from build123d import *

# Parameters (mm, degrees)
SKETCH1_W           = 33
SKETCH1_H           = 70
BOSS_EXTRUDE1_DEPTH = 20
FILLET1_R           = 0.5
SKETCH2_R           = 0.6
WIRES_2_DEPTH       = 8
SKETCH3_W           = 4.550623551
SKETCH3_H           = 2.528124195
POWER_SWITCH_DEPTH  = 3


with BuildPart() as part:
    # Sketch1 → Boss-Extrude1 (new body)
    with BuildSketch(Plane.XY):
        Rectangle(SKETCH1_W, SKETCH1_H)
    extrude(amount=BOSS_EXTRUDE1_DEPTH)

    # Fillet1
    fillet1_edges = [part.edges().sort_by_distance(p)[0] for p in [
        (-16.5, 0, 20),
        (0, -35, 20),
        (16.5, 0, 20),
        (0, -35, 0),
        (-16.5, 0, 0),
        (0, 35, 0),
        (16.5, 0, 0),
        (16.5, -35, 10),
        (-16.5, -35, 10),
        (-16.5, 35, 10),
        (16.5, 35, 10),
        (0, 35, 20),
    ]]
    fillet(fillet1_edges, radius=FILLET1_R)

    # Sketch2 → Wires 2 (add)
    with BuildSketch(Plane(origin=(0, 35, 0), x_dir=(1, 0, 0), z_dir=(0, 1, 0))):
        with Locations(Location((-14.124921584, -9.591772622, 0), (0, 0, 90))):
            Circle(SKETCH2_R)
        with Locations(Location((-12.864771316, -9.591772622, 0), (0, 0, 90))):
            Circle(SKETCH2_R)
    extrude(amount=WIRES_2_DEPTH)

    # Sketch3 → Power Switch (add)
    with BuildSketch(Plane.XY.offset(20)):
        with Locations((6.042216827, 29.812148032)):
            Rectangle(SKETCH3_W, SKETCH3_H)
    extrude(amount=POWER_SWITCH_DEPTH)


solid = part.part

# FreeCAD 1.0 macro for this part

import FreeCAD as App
import Part
import Sketcher


def add_polygon(sketch, points):
    """Adds a closed chain of lines whose ends are joined by coincident constraints."""
    first, n = sketch.GeometryCount, len(points)
    for a, b in zip(points, points[1:] + points[:1]):
        sketch.addGeometry(Part.LineSegment(App.Vector(*a, 0), App.Vector(*b, 0)), False)
    for i in range(n):
        sketch.addConstraint(Sketcher.Constraint("Coincident", first + i, 2, first + (i + 1) % n, 1))

doc = App.newDocument("Part")
body = doc.addObject("PartDesign::Body", "Body")

sketch1 = doc.addObject("Sketcher::SketchObject", "Sketch")
body.addObject(sketch1)
sketch1.AttachmentSupport = (doc.XY_Plane, [""])
sketch1.MapMode = "FlatFace"
add_polygon(sketch1, [(-16, 35), (-16, -35), (16, -35), (16, 35)])
sketch1.addConstraint([
    Sketcher.Constraint("Vertical", 0),
    Sketcher.Constraint("Horizontal", 1),
    Sketcher.Constraint("Vertical", 2),
    Sketcher.Constraint("Horizontal", 3),
    Sketcher.Constraint("Symmetric", 0, 2, 2, 2, -1, 1),
    Sketcher.Constraint("DistanceX", 1, 1, 1, 2, 33.0),
    Sketcher.Constraint("DistanceY", 0, 2, 0, 1, 70.0),
])
pad1 = doc.addObject("PartDesign::Pad", "Pad")
body.addObject(pad1)
pad1.Profile = sketch1
pad1.Length = 20
doc.recompute()

fillet = doc.addObject("PartDesign::Fillet", "Fillet")
body.addObject(fillet)
fillet.Base = (pad1, ["Edge1"])
fillet.UseAllEdges = True
fillet.Radius = 0.5

sketch2 = doc.addObject("Sketcher::SketchObject", "Sketch001")
body.addObject(sketch2)
sketch2.AttachmentSupport = (doc.XZ_Plane, [""])
sketch2.MapMode = "FlatFace"
sketch2.AttachmentOffset = App.Placement(App.Vector(0, 0, -35), App.Rotation())
sketch2.addGeometry([
    Part.Circle(App.Vector(-14.1, 9.6, 0), App.Vector(0, 0, 1), 0.6),
    Part.Circle(App.Vector(-12.9, 9.6, 0), App.Vector(0, 0, 1), 0.6),
], False)
sketch2.addConstraint([
    Sketcher.Constraint("Equal", 0, 1),
    Sketcher.Constraint("Horizontal", 0, 3, 1, 3),
    Sketcher.Constraint("Diameter", 0, 1.2),
    Sketcher.Constraint("DistanceX", 0, 3, -1, 1, 14.124922),
    Sketcher.Constraint("DistanceX", 1, 3, -1, 1, 12.864771),
    Sketcher.Constraint("DistanceY", -1, 1, 0, 3, 9.591773),
])
pad2 = doc.addObject("PartDesign::Pad", "Pad001")
body.addObject(pad2)
pad2.Profile = sketch2
pad2.Length = 8
pad2.Reversed = True

sketch3 = doc.addObject("Sketcher::SketchObject", "Sketch002")
body.addObject(sketch3)
sketch3.AttachmentSupport = (doc.XY_Plane, [""])
sketch3.MapMode = "FlatFace"
sketch3.AttachmentOffset = App.Placement(App.Vector(0, 0, 20), App.Rotation())
add_polygon(sketch3, [(3.8, 31.1), (3.8, 28.5), (8.3, 28.5), (8.3, 31.1)])
sketch3.addConstraint([
    Sketcher.Constraint("Vertical", 0),
    Sketcher.Constraint("Horizontal", 1),
    Sketcher.Constraint("Vertical", 2),
    Sketcher.Constraint("Horizontal", 3),
    Sketcher.Constraint("DistanceX", 1, 1, 1, 2, 4.550624),
    Sketcher.Constraint("DistanceY", 0, 2, 0, 1, 2.528124),
    Sketcher.Constraint("DistanceX", -1, 1, 1, 2, 8.317529),
    Sketcher.Constraint("DistanceY", -1, 1, 2, 2, 31.07621),
])
pad3 = doc.addObject("PartDesign::Pad", "Pad002")
body.addObject(pad3)
pad3.Profile = sketch3
pad3.Length = 3

doc.recompute()
